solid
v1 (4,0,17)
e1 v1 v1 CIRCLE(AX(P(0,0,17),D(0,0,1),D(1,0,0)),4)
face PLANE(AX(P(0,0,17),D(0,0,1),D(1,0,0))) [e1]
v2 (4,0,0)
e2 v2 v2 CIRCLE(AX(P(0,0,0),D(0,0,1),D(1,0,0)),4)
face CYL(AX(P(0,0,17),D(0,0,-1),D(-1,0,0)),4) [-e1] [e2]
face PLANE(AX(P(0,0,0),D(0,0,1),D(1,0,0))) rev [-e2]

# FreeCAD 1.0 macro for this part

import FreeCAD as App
import Part
import Sketcher

V = App.Vector

doc = App.newDocument("Part")
body = doc.addObject("PartDesign::Body", "Body")

sketch1 = body.newObject("Sketcher::SketchObject", "Sketch")
sketch1.AttachmentSupport = (doc.getObject("XY_Plane"), [""])
sketch1.MapMode = "FlatFace"
sketch1.addGeometry(Part.Circle(V(0, 0, 0), V(0, 0, 1), 4), False)
sketch1.addConstraint([
    Sketcher.Constraint("Coincident", 0, 3, -1, 1),
    Sketcher.Constraint("Diameter", 0, 8.0),
])
pad1 = body.newObject("PartDesign::Pad", "Pad")
pad1.Profile = sketch1
pad1.Length = 17

doc.recompute()
